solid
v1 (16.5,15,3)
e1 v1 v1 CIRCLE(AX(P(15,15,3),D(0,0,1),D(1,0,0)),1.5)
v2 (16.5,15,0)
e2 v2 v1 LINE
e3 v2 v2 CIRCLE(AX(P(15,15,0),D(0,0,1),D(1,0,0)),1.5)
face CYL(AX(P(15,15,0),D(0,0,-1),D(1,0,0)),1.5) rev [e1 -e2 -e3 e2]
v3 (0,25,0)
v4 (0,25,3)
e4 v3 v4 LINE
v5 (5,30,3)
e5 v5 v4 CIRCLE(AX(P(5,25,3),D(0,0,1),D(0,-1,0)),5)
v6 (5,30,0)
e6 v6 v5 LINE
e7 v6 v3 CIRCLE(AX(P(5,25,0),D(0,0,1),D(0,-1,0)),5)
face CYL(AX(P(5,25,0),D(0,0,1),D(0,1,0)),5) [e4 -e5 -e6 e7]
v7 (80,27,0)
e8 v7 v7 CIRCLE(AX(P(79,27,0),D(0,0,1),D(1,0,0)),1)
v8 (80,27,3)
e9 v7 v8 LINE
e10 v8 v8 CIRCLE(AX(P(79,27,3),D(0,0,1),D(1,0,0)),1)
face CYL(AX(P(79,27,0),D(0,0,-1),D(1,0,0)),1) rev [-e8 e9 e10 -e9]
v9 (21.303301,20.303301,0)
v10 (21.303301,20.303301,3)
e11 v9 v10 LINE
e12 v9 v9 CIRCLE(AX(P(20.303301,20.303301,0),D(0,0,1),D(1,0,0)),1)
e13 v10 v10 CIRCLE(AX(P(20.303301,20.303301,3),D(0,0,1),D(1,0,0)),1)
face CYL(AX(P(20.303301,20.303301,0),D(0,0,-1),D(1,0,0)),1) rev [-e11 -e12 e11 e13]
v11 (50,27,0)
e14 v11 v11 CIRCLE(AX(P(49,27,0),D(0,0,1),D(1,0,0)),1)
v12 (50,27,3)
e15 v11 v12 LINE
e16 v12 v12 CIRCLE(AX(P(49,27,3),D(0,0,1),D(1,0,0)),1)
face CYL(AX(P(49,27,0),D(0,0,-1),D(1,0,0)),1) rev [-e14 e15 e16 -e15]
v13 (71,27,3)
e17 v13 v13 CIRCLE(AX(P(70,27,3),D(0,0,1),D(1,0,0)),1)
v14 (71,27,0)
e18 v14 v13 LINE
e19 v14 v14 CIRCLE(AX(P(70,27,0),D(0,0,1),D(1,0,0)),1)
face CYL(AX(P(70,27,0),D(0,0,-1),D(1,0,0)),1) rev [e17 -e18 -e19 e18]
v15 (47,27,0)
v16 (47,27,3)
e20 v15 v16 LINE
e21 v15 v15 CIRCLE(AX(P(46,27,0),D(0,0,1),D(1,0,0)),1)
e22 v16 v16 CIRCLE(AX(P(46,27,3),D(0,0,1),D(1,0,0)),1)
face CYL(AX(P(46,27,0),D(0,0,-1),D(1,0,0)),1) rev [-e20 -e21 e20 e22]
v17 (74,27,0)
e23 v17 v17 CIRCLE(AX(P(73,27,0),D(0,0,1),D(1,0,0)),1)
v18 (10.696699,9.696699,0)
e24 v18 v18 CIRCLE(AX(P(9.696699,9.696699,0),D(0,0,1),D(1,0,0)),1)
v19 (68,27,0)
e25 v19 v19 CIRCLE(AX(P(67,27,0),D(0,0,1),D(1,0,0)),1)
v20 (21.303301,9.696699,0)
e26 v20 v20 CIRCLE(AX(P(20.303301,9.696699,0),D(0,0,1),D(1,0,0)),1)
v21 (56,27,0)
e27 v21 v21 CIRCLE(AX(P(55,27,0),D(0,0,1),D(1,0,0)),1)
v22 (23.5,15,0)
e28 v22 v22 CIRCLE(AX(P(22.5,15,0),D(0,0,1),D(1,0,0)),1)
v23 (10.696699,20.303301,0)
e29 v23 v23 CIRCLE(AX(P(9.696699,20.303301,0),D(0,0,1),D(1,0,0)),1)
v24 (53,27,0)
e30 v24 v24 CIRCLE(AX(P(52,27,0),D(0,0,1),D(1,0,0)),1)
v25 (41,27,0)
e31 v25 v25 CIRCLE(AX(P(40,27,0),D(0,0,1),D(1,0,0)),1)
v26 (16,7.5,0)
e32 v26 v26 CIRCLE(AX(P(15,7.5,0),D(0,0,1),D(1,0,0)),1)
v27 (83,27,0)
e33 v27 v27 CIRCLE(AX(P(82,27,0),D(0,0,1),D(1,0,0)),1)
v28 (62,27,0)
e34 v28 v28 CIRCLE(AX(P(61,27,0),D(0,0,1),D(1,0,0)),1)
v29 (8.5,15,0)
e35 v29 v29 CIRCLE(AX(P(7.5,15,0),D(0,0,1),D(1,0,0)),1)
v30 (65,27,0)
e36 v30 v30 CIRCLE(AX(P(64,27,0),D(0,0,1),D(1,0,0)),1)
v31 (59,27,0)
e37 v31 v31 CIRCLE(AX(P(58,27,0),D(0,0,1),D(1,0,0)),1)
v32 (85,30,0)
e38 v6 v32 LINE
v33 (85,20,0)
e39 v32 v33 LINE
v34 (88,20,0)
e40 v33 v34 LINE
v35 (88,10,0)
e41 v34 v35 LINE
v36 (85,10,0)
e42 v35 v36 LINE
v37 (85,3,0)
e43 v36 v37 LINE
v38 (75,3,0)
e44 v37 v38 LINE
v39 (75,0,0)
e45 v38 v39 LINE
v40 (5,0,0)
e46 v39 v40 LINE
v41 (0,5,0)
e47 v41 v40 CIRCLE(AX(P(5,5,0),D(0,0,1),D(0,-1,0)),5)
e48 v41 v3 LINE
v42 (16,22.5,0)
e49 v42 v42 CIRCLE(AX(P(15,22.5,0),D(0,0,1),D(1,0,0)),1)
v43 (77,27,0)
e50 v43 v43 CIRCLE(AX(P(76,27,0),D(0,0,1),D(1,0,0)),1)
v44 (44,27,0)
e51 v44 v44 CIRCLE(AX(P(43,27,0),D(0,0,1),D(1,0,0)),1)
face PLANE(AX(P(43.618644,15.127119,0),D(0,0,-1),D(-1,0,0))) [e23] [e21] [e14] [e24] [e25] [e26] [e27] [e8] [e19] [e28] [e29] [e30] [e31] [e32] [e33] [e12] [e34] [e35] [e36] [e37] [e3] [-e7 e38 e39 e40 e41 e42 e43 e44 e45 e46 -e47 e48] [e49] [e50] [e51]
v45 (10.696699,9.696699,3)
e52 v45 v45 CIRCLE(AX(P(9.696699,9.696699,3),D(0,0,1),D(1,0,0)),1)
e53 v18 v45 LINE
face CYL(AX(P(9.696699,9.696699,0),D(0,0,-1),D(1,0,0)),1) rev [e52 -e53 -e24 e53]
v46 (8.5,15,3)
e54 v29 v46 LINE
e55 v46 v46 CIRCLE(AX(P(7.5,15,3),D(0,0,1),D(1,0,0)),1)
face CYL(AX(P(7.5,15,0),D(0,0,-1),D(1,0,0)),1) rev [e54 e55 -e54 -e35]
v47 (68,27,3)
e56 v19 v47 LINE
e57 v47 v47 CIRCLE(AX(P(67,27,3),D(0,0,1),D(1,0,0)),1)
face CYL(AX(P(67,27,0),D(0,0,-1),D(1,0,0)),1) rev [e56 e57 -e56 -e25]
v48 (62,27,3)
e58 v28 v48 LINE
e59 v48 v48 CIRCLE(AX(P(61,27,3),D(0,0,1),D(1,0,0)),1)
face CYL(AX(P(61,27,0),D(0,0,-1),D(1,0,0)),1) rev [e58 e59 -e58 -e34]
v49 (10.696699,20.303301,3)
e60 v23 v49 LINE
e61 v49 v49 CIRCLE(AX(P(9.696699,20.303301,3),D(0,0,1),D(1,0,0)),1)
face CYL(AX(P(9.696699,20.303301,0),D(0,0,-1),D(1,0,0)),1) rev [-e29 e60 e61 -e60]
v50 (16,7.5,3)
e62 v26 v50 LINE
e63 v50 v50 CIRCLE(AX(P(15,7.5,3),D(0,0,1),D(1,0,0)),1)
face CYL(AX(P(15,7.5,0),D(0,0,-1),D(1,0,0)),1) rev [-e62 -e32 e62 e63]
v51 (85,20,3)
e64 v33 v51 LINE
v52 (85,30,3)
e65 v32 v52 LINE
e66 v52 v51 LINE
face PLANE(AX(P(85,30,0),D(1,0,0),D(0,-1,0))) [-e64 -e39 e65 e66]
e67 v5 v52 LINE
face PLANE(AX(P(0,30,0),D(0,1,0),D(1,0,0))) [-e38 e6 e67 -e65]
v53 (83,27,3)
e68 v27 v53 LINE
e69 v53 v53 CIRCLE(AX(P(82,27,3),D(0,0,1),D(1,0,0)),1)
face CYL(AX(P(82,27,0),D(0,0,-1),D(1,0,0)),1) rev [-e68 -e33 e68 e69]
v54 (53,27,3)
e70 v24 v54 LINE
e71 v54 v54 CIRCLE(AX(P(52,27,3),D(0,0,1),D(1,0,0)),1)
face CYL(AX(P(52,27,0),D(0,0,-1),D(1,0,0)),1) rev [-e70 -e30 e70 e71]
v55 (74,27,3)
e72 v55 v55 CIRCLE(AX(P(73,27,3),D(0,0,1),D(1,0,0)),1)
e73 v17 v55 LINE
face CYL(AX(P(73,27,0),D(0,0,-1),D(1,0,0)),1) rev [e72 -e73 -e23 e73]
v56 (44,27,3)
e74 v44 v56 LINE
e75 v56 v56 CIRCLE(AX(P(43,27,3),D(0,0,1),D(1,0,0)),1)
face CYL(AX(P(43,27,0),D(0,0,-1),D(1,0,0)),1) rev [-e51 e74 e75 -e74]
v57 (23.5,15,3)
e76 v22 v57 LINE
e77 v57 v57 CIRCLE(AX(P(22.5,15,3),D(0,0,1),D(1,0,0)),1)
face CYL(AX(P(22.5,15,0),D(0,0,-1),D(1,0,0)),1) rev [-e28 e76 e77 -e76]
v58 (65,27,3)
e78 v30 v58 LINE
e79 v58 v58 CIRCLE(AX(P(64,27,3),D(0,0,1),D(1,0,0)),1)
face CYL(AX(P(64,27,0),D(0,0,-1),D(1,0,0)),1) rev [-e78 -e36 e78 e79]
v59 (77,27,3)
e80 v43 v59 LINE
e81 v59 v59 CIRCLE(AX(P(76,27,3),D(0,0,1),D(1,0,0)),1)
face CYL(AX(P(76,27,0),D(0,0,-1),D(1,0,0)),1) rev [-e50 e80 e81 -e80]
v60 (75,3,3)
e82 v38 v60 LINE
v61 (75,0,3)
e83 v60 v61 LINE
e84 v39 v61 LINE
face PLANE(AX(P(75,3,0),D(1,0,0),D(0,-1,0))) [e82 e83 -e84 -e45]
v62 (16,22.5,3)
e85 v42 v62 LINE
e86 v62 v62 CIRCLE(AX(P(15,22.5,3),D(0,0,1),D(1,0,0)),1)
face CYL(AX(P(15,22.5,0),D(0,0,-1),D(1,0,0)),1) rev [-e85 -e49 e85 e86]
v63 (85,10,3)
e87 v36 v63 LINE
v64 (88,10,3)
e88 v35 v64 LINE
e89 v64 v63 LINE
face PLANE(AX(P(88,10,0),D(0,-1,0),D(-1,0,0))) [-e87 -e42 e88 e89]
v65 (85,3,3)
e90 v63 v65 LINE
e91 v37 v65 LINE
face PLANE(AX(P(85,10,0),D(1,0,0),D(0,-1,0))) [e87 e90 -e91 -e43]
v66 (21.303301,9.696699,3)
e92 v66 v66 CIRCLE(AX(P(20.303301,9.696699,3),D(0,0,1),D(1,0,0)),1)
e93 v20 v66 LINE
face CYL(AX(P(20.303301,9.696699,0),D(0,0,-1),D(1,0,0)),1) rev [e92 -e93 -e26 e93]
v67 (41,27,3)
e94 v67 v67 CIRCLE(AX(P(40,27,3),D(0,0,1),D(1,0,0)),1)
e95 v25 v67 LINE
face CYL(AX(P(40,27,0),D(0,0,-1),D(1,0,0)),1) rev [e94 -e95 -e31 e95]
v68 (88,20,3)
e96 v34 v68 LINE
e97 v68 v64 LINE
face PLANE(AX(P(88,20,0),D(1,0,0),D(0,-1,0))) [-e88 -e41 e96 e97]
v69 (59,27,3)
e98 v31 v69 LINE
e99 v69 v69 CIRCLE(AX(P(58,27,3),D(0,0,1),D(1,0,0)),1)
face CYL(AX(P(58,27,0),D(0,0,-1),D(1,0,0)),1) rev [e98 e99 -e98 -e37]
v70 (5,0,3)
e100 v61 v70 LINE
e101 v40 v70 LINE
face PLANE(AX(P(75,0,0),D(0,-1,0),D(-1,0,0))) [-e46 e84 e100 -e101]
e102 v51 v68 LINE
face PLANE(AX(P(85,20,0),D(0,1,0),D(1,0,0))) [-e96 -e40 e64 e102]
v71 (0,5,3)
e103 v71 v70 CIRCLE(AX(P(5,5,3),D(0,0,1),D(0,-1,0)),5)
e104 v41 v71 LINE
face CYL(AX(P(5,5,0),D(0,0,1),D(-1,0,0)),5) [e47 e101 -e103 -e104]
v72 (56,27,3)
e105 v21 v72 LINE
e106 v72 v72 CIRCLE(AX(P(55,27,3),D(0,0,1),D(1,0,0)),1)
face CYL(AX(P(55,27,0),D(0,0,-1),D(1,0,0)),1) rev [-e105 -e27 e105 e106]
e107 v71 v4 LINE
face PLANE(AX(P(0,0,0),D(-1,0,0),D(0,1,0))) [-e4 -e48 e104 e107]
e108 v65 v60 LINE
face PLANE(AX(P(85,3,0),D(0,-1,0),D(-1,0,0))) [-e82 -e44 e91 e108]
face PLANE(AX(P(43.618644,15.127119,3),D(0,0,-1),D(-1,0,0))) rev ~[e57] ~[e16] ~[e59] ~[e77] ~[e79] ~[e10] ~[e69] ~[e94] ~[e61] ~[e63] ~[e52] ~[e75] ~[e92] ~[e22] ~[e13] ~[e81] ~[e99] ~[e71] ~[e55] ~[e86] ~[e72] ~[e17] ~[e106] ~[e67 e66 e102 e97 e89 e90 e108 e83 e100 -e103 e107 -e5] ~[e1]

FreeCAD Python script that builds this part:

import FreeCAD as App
import Part
import Sketcher
from FreeCAD import Vector
Q = App.Units.Quantity


def edges_at(feature, points):
    """Names of the edges that pass closest to the given points."""
    edges = feature.Shape.Edges
    near = lambda p: min(range(len(edges)), key=lambda i: edges[i].distToShape(Part.Vertex(*p))[0])
    return sorted({f"Edge{near(p) + 1}" for p in points})

doc = App.newDocument("Part")
params = doc.addObject("Spreadsheet::Sheet", "Params")
for row, (alias, value) in enumerate([
    ("sketch1_diameter", "2 mm"),
    ("sketch1_diameter2", "3 mm"),
    ("sketch1_width", "85 mm"),
    ("sketch1_width2", "75 mm"),
    ("sketch1_width3", "3 mm"),
    ("pad1_length", "3 mm"),
    ("fillet_radius", "5 mm"),
], start=1):
    params.set(f"A{row}", alias)
    params.set(f"B{row}", "=" + value)
    params.setAlias(f"B{row}", alias)

body = doc.addObject("PartDesign::Body", "Body")

sketch1 = body.newObject("Sketcher::SketchObject", "Sketch")
sketch1.AttachmentSupport = (doc.getObject("XY_Plane"), [""])
sketch1.MapMode = "FlatFace"
sketch1.addGeometry([
    Part.LineSegment(Vector(85, 20, 0), Vector(85, 30, 0)),
    Part.LineSegment(Vector(85, 30, 0), Vector(0, 30, 0)),
    Part.LineSegment(Vector(0, 30, 0), Vector(0, 0, 0)),
    Part.LineSegment(Vector(0, 0, 0), Vector(75, 0, 0)),
    Part.LineSegment(Vector(75, 0, 0), Vector(75, 3, 0)),
    Part.LineSegment(Vector(75, 3, 0), Vector(85, 3, 0)),
    Part.LineSegment(Vector(85, 3, 0), Vector(85, 10, 0)),
    Part.LineSegment(Vector(85, 10, 0), Vector(88, 10, 0)),
    Part.LineSegment(Vector(88, 10, 0), Vector(88, 20, 0)),
    Part.LineSegment(Vector(88, 20, 0), Vector(85, 20, 0)),
    Part.Circle(Vector(15, 7.5, 0), Vector(0, 0, 1), 1),
    Part.Circle(Vector(20.3, 9.7, 0), Vector(0, 0, 1), 1),
    Part.Circle(Vector(9.7, 9.7, 0), Vector(0, 0, 1), 1),
    Part.Circle(Vector(22.5, 15, 0), Vector(0, 0, 1), 1),
    Part.Circle(Vector(15, 15, 0), Vector(0, 0, 1), 1.5),
    Part.Circle(Vector(7.5, 15, 0), Vector(0, 0, 1), 1),
    Part.Circle(Vector(82, 27, 0), Vector(0, 0, 1), 1),
    Part.Circle(Vector(79, 27, 0), Vector(0, 0, 1), 1),
    Part.Circle(Vector(76, 27, 0), Vector(0, 0, 1), 1),
    Part.Circle(Vector(73, 27, 0), Vector(0, 0, 1), 1),
    Part.Circle(Vector(70, 27, 0), Vector(0, 0, 1), 1),
    Part.Circle(Vector(67, 27, 0), Vector(0, 0, 1), 1),
    Part.Circle(Vector(64, 27, 0), Vector(0, 0, 1), 1),
    Part.Circle(Vector(61, 27, 0), Vector(0, 0, 1), 1),
    Part.Circle(Vector(58, 27, 0), Vector(0, 0, 1), 1),
    Part.Circle(Vector(55, 27, 0), Vector(0, 0, 1), 1),
    Part.Circle(Vector(52, 27, 0), Vector(0, 0, 1), 1),
    Part.Circle(Vector(49, 27, 0), Vector(0, 0, 1), 1),
    Part.Circle(Vector(46, 27, 0), Vector(0, 0, 1), 1),
    Part.Circle(Vector(20.3, 20.3, 0), Vector(0, 0, 1), 1),
    Part.Circle(Vector(9.7, 20.3, 0), Vector(0, 0, 1), 1),
    Part.Circle(Vector(15, 22.5, 0), Vector(0, 0, 1), 1),
    Part.Circle(Vector(43, 27, 0), Vector(0, 0, 1), 1),
    Part.Circle(Vector(40, 27, 0), Vector(0, 0, 1), 1),
], False)
sketch1.addConstraint([
    Sketcher.Constraint("Coincident", 0, 2, 1, 1),
    Sketcher.Constraint("Coincident", 1, 2, 2, 1),
    Sketcher.Constraint("Coincident", 2, 2, 3, 1),
    Sketcher.Constraint("Coincident", 3, 2, 4, 1),
    Sketcher.Constraint("Coincident", 4, 2, 5, 1),
    Sketcher.Constraint("Coincident", 5, 2, 6, 1),
    Sketcher.Constraint("Coincident", 6, 2, 7, 1),
    Sketcher.Constraint("Coincident", 7, 2, 8, 1),
    Sketcher.Constraint("Coincident", 8, 2, 9, 1),
    Sketcher.Constraint("Coincident", 9, 2, 0, 1),
    Sketcher.Constraint("Vertical", 0),
    Sketcher.Constraint("Horizontal", 1),
    Sketcher.Constraint("Vertical", 2),
    Sketcher.Constraint("Horizontal", 3),
    Sketcher.Constraint("Vertical", 4),
    Sketcher.Constraint("Horizontal", 5),
    Sketcher.Constraint("Vertical", 6),
    Sketcher.Constraint("Horizontal", 7),
    Sketcher.Constraint("Vertical", 8),
    Sketcher.Constraint("Horizontal", 9),
    Sketcher.Constraint("Coincident", 2, 2, -1, 1),
    Sketcher.Constraint("Equal", 10, 11),
    Sketcher.Constraint("Equal", 11, 12),
    Sketcher.Constraint("Equal", 12, 13),
    Sketcher.Constraint("Equal", 13, 15),
    Sketcher.Constraint("Equal", 15, 16),
    Sketcher.Constraint("Equal", 16, 17),
    Sketcher.Constraint("Equal", 17, 18),
    Sketcher.Constraint("Equal", 18, 19),
    Sketcher.Constraint("Equal", 19, 20),
    Sketcher.Constraint("Equal", 20, 21),
    Sketcher.Constraint("Equal", 21, 22),
    Sketcher.Constraint("Equal", 22, 23),
    Sketcher.Constraint("Equal", 23, 24),
    Sketcher.Constraint("Equal", 24, 25),
    Sketcher.Constraint("Equal", 25, 26),
    Sketcher.Constraint("Equal", 26, 27),
    Sketcher.Constraint("Equal", 27, 28),
    Sketcher.Constraint("Equal", 28, 29),
    Sketcher.Constraint("Equal", 29, 30),
    Sketcher.Constraint("Equal", 30, 31),
    Sketcher.Constraint("Equal", 31, 32),
    Sketcher.Constraint("Equal", 32, 33),
    Sketcher.Constraint("Horizontal", 11, 3, 12, 3),
    Sketcher.Constraint("Horizontal", 13, 3, 14, 3),
    Sketcher.Constraint("Horizontal", 14, 3, 15, 3),
    Sketcher.Constraint("Horizontal", 16, 3, 17, 3),
    Sketcher.Constraint("Horizontal", 17, 3, 18, 3),
    Sketcher.Constraint("Horizontal", 18, 3, 19, 3),
    Sketcher.Constraint("Horizontal", 19, 3, 20, 3),
    Sketcher.Constraint("Horizontal", 20, 3, 21, 3),
    Sketcher.Constraint("Horizontal", 21, 3, 22, 3),
    Sketcher.Constraint("Horizontal", 22, 3, 23, 3),
    Sketcher.Constraint("Horizontal", 23, 3, 24, 3),
    Sketcher.Constraint("Horizontal", 24, 3, 25, 3),
    Sketcher.Constraint("Horizontal", 25, 3, 26, 3),
    Sketcher.Constraint("Horizontal", 26, 3, 27, 3),
    Sketcher.Constraint("Horizontal", 27, 3, 28, 3),
    Sketcher.Constraint("Horizontal", 29, 3, 30, 3),
    Sketcher.Constraint("Horizontal", 28, 3, 32, 3),
    Sketcher.Constraint("Horizontal", 32, 3, 33, 3),
    Sketcher.Constraint("Vertical", 10, 3, 14, 3),
    Sketcher.Constraint("Vertical", 11, 3, 29, 3),
    Sketcher.Constraint("Vertical", 12, 3, 30, 3),
    Sketcher.Constraint("Vertical", 14, 3, 31, 3),
    Sketcher.Constraint("Vertical", 0, 2, 5, 2),
    Sketcher.Constraint("Equal", 5, 0),
    Sketcher.Constraint("Equal", 9, 4),
    Sketcher.Constraint("Equal", 0, 8),
    Sketcher.Constraint("Diameter", 10, Q("2 mm")),
    Sketcher.Constraint("Diameter", 14, Q("3 mm")),
    Sketcher.Constraint("DistanceX", 1, 2, 1, 1, Q("85 mm")),
    Sketcher.Constraint("DistanceX", 3, 1, 3, 2, Q("75 mm")),
    Sketcher.Constraint("DistanceX", 7, 1, 7, 2, Q("3 mm")),
    Sketcher.Constraint("DistanceY", 2, 2, 2, 1, Q("30 mm")),
    Sketcher.Constraint("DistanceX", -1, 1, 10, 3, Q("15 mm")),
    Sketcher.Constraint("DistanceY", -1, 1, 13, 3, Q("15 mm")),
    Sketcher.Constraint("DistanceX", -1, 1, 16, 3, Q("82 mm")),
    Sketcher.Constraint("DistanceY", -1, 1, 16, 3, Q("27 mm")),
    Sketcher.Constraint("DistanceX", -1, 1, 17, 3, Q("79 mm")),
    Sketcher.Constraint("DistanceX", -1, 1, 18, 3, Q("76 mm")),
    Sketcher.Constraint("DistanceX", -1, 1, 19, 3, Q("73 mm")),
    Sketcher.Constraint("DistanceX", -1, 1, 20, 3, Q("70 mm")),
    Sketcher.Constraint("DistanceX", -1, 1, 21, 3, Q("67 mm")),
    Sketcher.Constraint("DistanceX", -1, 1, 22, 3, Q("64 mm")),
    Sketcher.Constraint("DistanceX", -1, 1, 23, 3, Q("61 mm")),
    Sketcher.Constraint("DistanceX", -1, 1, 24, 3, Q("58 mm")),
    Sketcher.Constraint("DistanceX", -1, 1, 25, 3, Q("55 mm")),
    Sketcher.Constraint("DistanceX", -1, 1, 26, 3, Q("52 mm")),
    Sketcher.Constraint("DistanceX", -1, 1, 27, 3, Q("49 mm")),
    Sketcher.Constraint("DistanceX", -1, 1, 28, 3, Q("46 mm")),
    Sketcher.Constraint("DistanceX", -1, 1, 32, 3, Q("43 mm")),
    Sketcher.Constraint("DistanceX", -1, 1, 33, 3, Q("40 mm")),
    Sketcher.Constraint("DistanceX", 15, 3, 13, 3, Q("15 mm")),
    Sketcher.Constraint("DistanceY", -1, 1, 10, 3, Q("7.5 mm")),
    Sketcher.Constraint("DistanceX", -1, 1, 13, 3, Q("22.5 mm")),
    Sketcher.Constraint("DistanceY", -1, 1, 31, 3, Q("22.5 mm")),
    Sketcher.Constraint("DistanceX", -1, 1, 11, 3, Q("20.303301 mm")),
    Sketcher.Constraint("DistanceY", -1, 1, 11, 3, Q("9.696699 mm")),
    Sketcher.Constraint("DistanceX", -1, 1, 12, 3, Q("9.696699 mm")),
    Sketcher.Constraint("DistanceY", -1, 1, 29, 3, Q("20.303301 mm")),
])
sketch1.setExpression("Constraints[69]", "Params.sketch1_diameter")
sketch1.setExpression("Constraints[70]", "Params.sketch1_diameter2")
sketch1.setExpression("Constraints[71]", "Params.sketch1_width")
sketch1.setExpression("Constraints[72]", "Params.sketch1_width2")
sketch1.setExpression("Constraints[73]", "Params.sketch1_width3")
pad1 = body.newObject("PartDesign::Pad", "Pad")
pad1.Profile = sketch1
pad1.setExpression("Length", "Params.pad1_length")
doc.recompute()

fillet = body.newObject("PartDesign::Fillet", "Fillet")
fillet.Base = (pad1, edges_at(pad1, [(0, 0, 1.5), (0, 30, 1.5)]))
fillet.setExpression("Radius", "Params.fillet_radius")

doc.recompute()
